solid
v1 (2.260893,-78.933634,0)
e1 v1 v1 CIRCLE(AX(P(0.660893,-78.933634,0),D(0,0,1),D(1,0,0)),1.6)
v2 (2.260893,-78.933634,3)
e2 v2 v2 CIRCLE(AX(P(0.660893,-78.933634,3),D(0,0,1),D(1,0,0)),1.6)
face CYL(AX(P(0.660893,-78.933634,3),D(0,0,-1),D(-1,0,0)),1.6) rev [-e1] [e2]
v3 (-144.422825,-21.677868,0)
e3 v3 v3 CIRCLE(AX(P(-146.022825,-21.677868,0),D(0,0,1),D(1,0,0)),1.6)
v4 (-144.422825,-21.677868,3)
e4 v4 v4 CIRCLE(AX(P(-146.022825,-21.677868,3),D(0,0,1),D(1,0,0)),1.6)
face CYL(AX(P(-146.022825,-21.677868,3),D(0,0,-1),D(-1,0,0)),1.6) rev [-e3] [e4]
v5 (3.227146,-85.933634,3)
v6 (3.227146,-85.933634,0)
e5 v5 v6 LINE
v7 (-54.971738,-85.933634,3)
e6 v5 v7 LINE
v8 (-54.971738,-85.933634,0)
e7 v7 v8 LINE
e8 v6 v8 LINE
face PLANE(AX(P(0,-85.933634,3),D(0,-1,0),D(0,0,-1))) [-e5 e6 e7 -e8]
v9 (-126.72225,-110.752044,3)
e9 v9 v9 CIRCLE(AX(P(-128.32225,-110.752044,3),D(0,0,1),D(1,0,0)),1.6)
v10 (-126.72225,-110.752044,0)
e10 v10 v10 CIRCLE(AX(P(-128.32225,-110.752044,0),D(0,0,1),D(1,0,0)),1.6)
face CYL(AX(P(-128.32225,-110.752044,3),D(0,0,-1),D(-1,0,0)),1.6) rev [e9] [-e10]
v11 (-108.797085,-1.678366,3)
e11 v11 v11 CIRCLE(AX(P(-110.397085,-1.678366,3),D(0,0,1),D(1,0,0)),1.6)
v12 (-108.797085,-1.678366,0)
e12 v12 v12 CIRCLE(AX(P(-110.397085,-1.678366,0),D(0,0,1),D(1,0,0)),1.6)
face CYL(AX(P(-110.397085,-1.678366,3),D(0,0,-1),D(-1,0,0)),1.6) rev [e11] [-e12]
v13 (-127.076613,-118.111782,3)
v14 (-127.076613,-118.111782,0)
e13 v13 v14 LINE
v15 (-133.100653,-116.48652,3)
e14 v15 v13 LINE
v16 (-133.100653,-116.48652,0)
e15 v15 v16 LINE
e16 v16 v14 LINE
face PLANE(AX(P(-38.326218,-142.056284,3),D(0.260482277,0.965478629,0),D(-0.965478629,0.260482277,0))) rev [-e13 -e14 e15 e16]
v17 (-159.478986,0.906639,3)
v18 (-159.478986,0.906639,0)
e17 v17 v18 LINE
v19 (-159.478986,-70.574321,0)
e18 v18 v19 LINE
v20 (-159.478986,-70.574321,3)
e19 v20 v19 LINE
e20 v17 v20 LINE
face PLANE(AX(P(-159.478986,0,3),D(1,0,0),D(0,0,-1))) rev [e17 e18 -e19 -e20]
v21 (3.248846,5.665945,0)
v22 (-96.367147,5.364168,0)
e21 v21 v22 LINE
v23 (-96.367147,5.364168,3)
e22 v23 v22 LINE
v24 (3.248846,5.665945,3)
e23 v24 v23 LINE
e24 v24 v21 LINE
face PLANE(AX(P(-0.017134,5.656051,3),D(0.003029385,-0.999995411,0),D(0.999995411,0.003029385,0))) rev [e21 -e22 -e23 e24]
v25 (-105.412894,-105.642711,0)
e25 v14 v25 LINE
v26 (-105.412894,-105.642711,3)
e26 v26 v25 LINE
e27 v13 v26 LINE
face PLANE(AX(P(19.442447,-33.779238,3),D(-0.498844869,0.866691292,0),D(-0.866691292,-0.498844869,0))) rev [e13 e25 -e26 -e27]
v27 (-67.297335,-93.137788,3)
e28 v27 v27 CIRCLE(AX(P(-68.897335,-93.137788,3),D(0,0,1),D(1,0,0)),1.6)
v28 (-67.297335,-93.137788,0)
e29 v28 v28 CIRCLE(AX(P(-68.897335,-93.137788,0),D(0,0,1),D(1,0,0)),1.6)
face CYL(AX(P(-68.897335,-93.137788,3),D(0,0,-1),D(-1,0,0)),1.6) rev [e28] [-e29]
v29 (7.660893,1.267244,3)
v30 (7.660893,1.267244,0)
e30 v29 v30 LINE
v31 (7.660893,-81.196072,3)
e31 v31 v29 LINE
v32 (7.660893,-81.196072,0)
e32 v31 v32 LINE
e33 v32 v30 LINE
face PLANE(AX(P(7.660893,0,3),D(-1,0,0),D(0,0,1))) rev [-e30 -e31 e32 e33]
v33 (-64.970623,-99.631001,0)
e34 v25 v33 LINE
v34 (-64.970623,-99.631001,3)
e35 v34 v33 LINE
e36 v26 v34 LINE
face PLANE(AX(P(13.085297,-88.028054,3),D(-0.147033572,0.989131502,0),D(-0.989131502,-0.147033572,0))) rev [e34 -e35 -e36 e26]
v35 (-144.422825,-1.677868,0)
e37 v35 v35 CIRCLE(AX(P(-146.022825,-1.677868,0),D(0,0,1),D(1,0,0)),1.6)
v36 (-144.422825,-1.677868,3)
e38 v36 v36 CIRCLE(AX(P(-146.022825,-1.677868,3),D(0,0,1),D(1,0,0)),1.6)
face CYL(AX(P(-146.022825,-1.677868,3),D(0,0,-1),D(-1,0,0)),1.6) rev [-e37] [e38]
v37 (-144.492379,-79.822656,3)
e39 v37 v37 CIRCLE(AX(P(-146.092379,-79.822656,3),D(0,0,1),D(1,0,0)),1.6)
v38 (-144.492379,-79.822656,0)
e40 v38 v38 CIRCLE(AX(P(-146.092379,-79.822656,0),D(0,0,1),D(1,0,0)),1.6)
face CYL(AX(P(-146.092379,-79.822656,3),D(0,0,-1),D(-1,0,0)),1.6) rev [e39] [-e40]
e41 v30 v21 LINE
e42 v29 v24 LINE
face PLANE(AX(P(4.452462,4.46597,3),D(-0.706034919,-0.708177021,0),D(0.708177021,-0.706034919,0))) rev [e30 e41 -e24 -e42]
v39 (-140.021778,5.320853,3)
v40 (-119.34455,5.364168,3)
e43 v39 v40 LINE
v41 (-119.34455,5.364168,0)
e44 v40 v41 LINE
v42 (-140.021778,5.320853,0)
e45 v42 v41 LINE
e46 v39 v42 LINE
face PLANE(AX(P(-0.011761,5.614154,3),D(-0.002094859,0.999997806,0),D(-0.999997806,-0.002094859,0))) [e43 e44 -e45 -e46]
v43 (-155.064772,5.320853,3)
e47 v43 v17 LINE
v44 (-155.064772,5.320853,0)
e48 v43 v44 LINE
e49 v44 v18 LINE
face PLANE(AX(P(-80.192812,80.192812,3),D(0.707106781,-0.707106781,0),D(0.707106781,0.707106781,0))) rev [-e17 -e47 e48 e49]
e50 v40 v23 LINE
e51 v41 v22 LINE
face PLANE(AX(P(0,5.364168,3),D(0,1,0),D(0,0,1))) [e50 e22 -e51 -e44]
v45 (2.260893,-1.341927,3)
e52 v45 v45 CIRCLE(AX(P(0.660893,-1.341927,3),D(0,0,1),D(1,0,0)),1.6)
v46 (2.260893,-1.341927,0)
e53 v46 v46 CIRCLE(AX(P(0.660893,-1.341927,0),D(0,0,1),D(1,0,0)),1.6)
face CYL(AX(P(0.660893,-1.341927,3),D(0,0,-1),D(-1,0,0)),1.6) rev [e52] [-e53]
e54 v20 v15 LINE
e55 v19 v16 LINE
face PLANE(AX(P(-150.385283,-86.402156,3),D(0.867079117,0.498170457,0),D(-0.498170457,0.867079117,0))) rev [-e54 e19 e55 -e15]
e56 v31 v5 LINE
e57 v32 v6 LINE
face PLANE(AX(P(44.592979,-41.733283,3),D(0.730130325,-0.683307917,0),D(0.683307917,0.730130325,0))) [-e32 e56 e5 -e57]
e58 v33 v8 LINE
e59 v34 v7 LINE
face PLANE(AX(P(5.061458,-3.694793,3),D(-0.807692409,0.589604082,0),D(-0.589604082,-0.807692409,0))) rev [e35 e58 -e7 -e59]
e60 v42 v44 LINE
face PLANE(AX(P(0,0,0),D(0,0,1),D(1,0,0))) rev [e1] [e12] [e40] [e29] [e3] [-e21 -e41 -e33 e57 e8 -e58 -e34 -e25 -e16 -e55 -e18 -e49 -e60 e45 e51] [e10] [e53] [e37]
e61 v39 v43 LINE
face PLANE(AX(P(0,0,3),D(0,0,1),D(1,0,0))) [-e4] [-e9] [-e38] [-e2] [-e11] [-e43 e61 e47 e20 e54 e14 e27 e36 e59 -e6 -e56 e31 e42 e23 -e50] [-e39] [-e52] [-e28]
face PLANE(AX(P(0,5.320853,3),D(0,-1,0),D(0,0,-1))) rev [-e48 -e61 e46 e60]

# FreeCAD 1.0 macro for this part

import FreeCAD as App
import Part
import Sketcher
from FreeCAD import Vector
Q = App.Units.Quantity

doc = App.newDocument("Part")
body = doc.addObject("PartDesign::Body", "Body")

# Sketch on XY plane
sketch1 = body.newObject("Sketcher::SketchObject", "Sketch")
sketch1.AttachmentSupport = (doc.getObject("XY_Plane"), [""])
sketch1.MapMode = "FlatFace"
sketch1.addGeometry(Part.LineSegment(Vector(7.7, 1.3, 0), Vector(3.2, 5.7, 0)), False)
sketch1.addGeometry(Part.LineSegment(Vector(3.2, 5.7, 0), Vector(-96.4, 5.4, 0)), False)
sketch1.addGeometry(Part.LineSegment(Vector(-96.4, 5.4, 0), Vector(-119.3, 5.4, 0)), False)
sketch1.addGeometry(Part.LineSegment(Vector(-119.3, 5.4, 0), Vector(-140, 5.3, 0)), False)
sketch1.addGeometry(Part.LineSegment(Vector(-140, 5.3, 0), Vector(-155.1, 5.3, 0)), False)
sketch1.addGeometry(Part.LineSegment(Vector(-155.1, 5.3, 0), Vector(-159.5, 0.9, 0)), False)
sketch1.addGeometry(Part.LineSegment(Vector(-159.5, 0.9, 0), Vector(-159.5, -70.6, 0)), False)
sketch1.addGeometry(Part.LineSegment(Vector(-159.5, -70.6, 0), Vector(-133.1, -116.5, 0)), False)
sketch1.addGeometry(Part.LineSegment(Vector(-133.1, -116.5, 0), Vector(-127.1, -118.1, 0)), False)
sketch1.addGeometry(Part.LineSegment(Vector(-127.1, -118.1, 0), Vector(-105.4, -105.6, 0)), False)
sketch1.addGeometry(Part.LineSegment(Vector(-105.4, -105.6, 0), Vector(-65, -99.6, 0)), False)
sketch1.addGeometry(Part.LineSegment(Vector(-65, -99.6, 0), Vector(-55, -85.9, 0)), False)
sketch1.addGeometry(Part.LineSegment(Vector(-55, -85.9, 0), Vector(3.2, -85.9, 0)), False)
sketch1.addGeometry(Part.LineSegment(Vector(3.2, -85.9, 0), Vector(7.7, -81.2, 0)), False)
sketch1.addGeometry(Part.LineSegment(Vector(7.7, -81.2, 0), Vector(7.7, 1.3, 0)), False)
sketch1.addGeometry(Part.Circle(Vector(-128.3, -110.8, 0), Vector(0, 0, 1), 1.6), False)
sketch1.addGeometry(Part.Circle(Vector(-146.1, -79.8, 0), Vector(0, 0, 1), 1.6), False)
sketch1.addGeometry(Part.Circle(Vector(-68.9, -93.1, 0), Vector(0, 0, 1), 1.6), False)
sketch1.addGeometry(Part.Circle(Vector(0.7, -78.9, 0), Vector(0, 0, 1), 1.6), False)
sketch1.addGeometry(Part.Circle(Vector(-146, -21.7, 0), Vector(0, 0, 1), 1.6), False)
sketch1.addGeometry(Part.Circle(Vector(-146, -1.7, 0), Vector(0, 0, 1), 1.6), False)
sketch1.addGeometry(Part.Circle(Vector(-110.4, -1.7, 0), Vector(0, 0, 1), 1.6), False)
sketch1.addGeometry(Part.Circle(Vector(0.7, -1.3, 0), Vector(0, 0, 1), 1.6), False)
sketch1.addConstraint(Sketcher.Constraint("Coincident", 0, 2, 1, 1))
sketch1.addConstraint(Sketcher.Constraint("Coincident", 1, 2, 2, 1))
sketch1.addConstraint(Sketcher.Constraint("Coincident", 2, 2, 3, 1))
sketch1.addConstraint(Sketcher.Constraint("Coincident", 3, 2, 4, 1))
sketch1.addConstraint(Sketcher.Constraint("Coincident", 4, 2, 5, 1))
sketch1.addConstraint(Sketcher.Constraint("Coincident", 5, 2, 6, 1))
sketch1.addConstraint(Sketcher.Constraint("Coincident", 6, 2, 7, 1))
sketch1.addConstraint(Sketcher.Constraint("Coincident", 7, 2, 8, 1))
sketch1.addConstraint(Sketcher.Constraint("Coincident", 8, 2, 9, 1))
sketch1.addConstraint(Sketcher.Constraint("Coincident", 9, 2, 10, 1))
sketch1.addConstraint(Sketcher.Constraint("Coincident", 10, 2, 11, 1))
sketch1.addConstraint(Sketcher.Constraint("Coincident", 11, 2, 12, 1))
sketch1.addConstraint(Sketcher.Constraint("Coincident", 12, 2, 13, 1))
sketch1.addConstraint(Sketcher.Constraint("Coincident", 13, 2, 14, 1))
sketch1.addConstraint(Sketcher.Constraint("Coincident", 14, 2, 0, 1))
sketch1.addConstraint(Sketcher.Constraint("Horizontal", 2))
sketch1.addConstraint(Sketcher.Constraint("Horizontal", 4))
sketch1.addConstraint(Sketcher.Constraint("Vertical", 6))
sketch1.addConstraint(Sketcher.Constraint("Horizontal", 12))
sketch1.addConstraint(Sketcher.Constraint("Vertical", 14))
sketch1.addConstraint(Sketcher.Constraint("Equal", 15, 16))
sketch1.addConstraint(Sketcher.Constraint("Equal", 16, 17))
sketch1.addConstraint(Sketcher.Constraint("Equal", 17, 18))
sketch1.addConstraint(Sketcher.Constraint("Equal", 18, 19))
sketch1.addConstraint(Sketcher.Constraint("Equal", 19, 20))
sketch1.addConstraint(Sketcher.Constraint("Equal", 20, 21))
sketch1.addConstraint(Sketcher.Constraint("Equal", 21, 22))
sketch1.addConstraint(Sketcher.Constraint("Vertical", 19, 3, 20, 3))
sketch1.addConstraint(Sketcher.Constraint("Vertical", 18, 3, 22, 3))
sketch1.addConstraint(Sketcher.Constraint("Diameter", 15, 3.2))
sketch1.addConstraint(Sketcher.Constraint("Angle", 5, Q("-135 deg")))
sketch1.addConstraint(Sketcher.Constraint("DistanceY", 19, 3, 20, 3, 20.0))
sketch1.addConstraint(Sketcher.Constraint("DistanceY", 11, 2, 18, 3, 7.0))
sketch1.addConstraint(Sketcher.Constraint("DistanceX", 18, 3, 13, 2, 7.0))
sketch1.addConstraint(Sketcher.Constraint("DistanceY", 10, 2, -1, 1, 99.631001))
sketch1.addConstraint(Sketcher.Constraint("DistanceY", 6, 2, 6, 1, 71.48096))
sketch1.addConstraint(Sketcher.Constraint("DistanceY", 7, 2, 6, 2, 45.912199))
sketch1.addConstraint(Sketcher.Constraint("DistanceY", 14, 2, 0, 2, 4.398701))
sketch1.addConstraint(Sketcher.Constraint("Distance", 1, 99.61645))
sketch1.addConstraint(Sketcher.Constraint("Distance", 5, 6.242641))
sketch1.addConstraint(Sketcher.Constraint("Distance", 9, 24.995889))
sketch1.addConstraint(Sketcher.Constraint("DistanceX", 2, 2, 2, 1, 22.977403))
sketch1.addConstraint(Sketcher.Constraint("DistanceX", 4, 2, 4, 1, 15.042995))
sketch1.addConstraint(Sketcher.Constraint("DistanceX", 12, 1, 12, 2, 58.198884))
sketch1.addConstraint(Sketcher.Constraint("DistanceY", 14, 1, 14, 2, 82.463316))
sketch1.addConstraint(Sketcher.Constraint("DistanceX", 15, 3, -1, 1, 128.32225))
sketch1.addConstraint(Sketcher.Constraint("DistanceX", 16, 3, -1, 1, 146.092379))
sketch1.addConstraint(Sketcher.Constraint("DistanceY", 17, 3, -1, 1, 93.137788))
sketch1.addConstraint(Sketcher.Constraint("DistanceY", 19, 3, -1, 1, 21.677868))
sketch1.addConstraint(Sketcher.Constraint("DistanceY", -1, 1, 1, 2, 5.364168))
sketch1.addConstraint(Sketcher.Constraint("DistanceX", 2, 2, -1, 1, 119.34455))
sketch1.addConstraint(Sketcher.Constraint("DistanceY", -1, 1, 5, 2, 0.906639))
sketch1.addConstraint(Sketcher.Constraint("DistanceY", 8, 2, -1, 1, 118.111782))
sketch1.addConstraint(Sketcher.Constraint("DistanceY", 9, 2, -1, 1, 105.642711))
sketch1.addConstraint(Sketcher.Constraint("DistanceX", 11, 2, -1, 1, 54.971738))
sketch1.addConstraint(Sketcher.Constraint("DistanceY", 15, 3, 16, 3, 30.929388))
sketch1.addConstraint(Sketcher.Constraint("DistanceY", 15, 3, 18, 3, 31.818411))
sketch1.addConstraint(Sketcher.Constraint("DistanceX", 16, 3, 18, 3, 146.753272))
sketch1.addConstraint(Sketcher.Constraint("DistanceX", 19, 3, 17, 3, 77.12549))
sketch1.addConstraint(Sketcher.Constraint("DistanceX", 19, 3, 18, 3, 146.683718))
sketch1.addConstraint(Sketcher.Constraint("DistanceX", 20, 3, 21, 3, 35.62574))
sketch1.addConstraint(Sketcher.Constraint("DistanceY", 16, 3, 21, 3, 78.14429))
sketch1.addConstraint(Sketcher.Constraint("DistanceY", 21, 3, 22, 3, 0.336439))
sketch1.addConstraint(Sketcher.Constraint("DistanceY", 17, 3, 22, 3, 91.795861))
sketch1.addConstraint(Sketcher.Constraint("DistanceY", 18, 3, 0, 2, 84.599579))
sketch1.addConstraint(Sketcher.Constraint("DistanceX", 3, 2, 1, 2, 43.654631))
sketch1.addConstraint(Sketcher.Constraint("DistanceX", 7, 2, 17, 3, 64.203319))
sketch1.addConstraint(Sketcher.Constraint("DistanceX", 7, 2, 8, 2, 6.02404))
sketch1.addConstraint(Sketcher.Constraint("DistanceX", 17, 3, 10, 2, 3.926712))
pad1 = body.newObject("PartDesign::Pad", "Pad")
pad1.Profile = sketch1
pad1.Length = 3

doc.recompute()
